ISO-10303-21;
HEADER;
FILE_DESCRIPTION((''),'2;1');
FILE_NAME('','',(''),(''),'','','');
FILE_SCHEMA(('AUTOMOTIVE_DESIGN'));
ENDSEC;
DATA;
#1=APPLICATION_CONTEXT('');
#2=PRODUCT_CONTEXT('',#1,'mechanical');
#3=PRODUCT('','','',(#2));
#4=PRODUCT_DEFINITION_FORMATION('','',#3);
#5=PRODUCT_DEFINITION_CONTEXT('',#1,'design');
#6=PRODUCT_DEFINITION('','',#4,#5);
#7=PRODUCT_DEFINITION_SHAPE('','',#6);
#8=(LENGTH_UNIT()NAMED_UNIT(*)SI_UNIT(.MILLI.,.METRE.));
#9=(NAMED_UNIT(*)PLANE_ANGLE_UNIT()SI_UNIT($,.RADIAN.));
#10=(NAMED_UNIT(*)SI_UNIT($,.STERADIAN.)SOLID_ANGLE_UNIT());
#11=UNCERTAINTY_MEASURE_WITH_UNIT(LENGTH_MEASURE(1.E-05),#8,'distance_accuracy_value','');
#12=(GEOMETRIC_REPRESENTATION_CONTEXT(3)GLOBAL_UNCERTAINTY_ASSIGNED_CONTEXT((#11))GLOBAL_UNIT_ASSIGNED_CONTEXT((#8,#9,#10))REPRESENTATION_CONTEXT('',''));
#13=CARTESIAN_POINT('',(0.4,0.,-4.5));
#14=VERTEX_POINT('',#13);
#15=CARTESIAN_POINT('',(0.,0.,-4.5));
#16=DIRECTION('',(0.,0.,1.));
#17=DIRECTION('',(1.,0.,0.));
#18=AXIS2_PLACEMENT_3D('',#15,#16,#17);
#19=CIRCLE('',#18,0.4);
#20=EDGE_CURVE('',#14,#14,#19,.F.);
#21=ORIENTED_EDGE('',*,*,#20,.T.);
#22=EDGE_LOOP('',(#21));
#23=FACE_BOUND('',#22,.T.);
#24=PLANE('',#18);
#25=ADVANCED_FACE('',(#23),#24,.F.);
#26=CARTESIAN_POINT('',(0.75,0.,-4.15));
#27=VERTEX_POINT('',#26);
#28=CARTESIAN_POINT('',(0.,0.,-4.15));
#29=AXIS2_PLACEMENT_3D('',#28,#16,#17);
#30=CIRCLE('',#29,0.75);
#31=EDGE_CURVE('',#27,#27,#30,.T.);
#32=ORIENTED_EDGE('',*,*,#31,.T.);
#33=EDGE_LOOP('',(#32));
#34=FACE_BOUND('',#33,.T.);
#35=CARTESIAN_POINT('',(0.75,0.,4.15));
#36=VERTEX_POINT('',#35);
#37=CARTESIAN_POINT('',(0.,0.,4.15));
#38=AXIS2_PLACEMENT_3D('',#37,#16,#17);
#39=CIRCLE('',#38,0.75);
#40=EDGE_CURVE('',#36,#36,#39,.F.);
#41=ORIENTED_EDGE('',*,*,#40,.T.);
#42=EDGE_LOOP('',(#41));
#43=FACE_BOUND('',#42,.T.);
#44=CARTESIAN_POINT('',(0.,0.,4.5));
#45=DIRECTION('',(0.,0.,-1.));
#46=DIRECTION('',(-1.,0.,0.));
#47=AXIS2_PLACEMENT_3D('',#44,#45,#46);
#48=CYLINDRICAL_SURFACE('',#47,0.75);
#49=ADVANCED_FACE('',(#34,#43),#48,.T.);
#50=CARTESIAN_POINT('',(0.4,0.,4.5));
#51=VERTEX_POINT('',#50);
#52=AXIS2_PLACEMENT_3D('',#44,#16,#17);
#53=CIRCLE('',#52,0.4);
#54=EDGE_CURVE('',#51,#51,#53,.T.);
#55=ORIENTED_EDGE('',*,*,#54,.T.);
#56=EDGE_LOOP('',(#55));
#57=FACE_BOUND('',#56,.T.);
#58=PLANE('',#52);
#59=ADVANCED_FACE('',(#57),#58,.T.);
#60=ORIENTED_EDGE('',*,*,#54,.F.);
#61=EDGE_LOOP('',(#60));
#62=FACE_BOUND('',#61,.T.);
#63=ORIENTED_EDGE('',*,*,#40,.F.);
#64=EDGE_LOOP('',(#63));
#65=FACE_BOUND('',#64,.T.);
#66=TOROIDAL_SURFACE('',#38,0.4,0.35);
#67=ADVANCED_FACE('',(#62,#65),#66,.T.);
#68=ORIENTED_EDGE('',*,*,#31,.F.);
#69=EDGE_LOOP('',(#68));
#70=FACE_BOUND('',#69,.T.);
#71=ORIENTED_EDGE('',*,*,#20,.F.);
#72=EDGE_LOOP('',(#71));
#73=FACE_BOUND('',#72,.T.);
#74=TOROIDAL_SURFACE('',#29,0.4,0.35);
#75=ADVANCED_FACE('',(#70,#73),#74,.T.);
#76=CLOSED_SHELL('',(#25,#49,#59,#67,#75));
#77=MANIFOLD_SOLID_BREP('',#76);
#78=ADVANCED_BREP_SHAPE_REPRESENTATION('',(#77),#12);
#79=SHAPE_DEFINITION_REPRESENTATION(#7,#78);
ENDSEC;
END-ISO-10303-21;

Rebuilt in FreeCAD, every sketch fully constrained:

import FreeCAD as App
import Part
import Sketcher

V = App.Vector


def edges_at(feature, points):
    """Names of the edges that pass closest to the given points."""
    edges = feature.Shape.Edges
    near = lambda p: min(range(len(edges)), key=lambda i: edges[i].distToShape(Part.Vertex(*p))[0])
    return sorted({f"Edge{near(p) + 1}" for p in points})

doc = App.newDocument("Part")
body = doc.addObject("PartDesign::Body", "Body")

# Sketch on XY plane
sketch1 = body.newObject("Sketcher::SketchObject", "Sketch")
sketch1.AttachmentSupport = (doc.getObject("XY_Plane"), [""])
sketch1.MapMode = "FlatFace"
sketch1.addGeometry(Part.Circle(V(0, 0, 0), V(0, 0, 1), 0.75), False)
sketch1.addConstraint([
    Sketcher.Constraint("Coincident", 0, 3, -1, 1),
    Sketcher.Constraint("Diameter", 0, 1.5),
])
pad1 = body.newObject("PartDesign::Pad", "Pad")
pad1.Profile = sketch1
pad1.Length = 9
pad1.Midplane = True
doc.recompute()

fillet = body.newObject("PartDesign::Fillet", "Fillet")
fillet.Base = (pad1, edges_at(pad1, [(-0.75, 0, -4.5), (-0.75, 0, 4.5)]))
fillet.Radius = 0.35

doc.recompute()
